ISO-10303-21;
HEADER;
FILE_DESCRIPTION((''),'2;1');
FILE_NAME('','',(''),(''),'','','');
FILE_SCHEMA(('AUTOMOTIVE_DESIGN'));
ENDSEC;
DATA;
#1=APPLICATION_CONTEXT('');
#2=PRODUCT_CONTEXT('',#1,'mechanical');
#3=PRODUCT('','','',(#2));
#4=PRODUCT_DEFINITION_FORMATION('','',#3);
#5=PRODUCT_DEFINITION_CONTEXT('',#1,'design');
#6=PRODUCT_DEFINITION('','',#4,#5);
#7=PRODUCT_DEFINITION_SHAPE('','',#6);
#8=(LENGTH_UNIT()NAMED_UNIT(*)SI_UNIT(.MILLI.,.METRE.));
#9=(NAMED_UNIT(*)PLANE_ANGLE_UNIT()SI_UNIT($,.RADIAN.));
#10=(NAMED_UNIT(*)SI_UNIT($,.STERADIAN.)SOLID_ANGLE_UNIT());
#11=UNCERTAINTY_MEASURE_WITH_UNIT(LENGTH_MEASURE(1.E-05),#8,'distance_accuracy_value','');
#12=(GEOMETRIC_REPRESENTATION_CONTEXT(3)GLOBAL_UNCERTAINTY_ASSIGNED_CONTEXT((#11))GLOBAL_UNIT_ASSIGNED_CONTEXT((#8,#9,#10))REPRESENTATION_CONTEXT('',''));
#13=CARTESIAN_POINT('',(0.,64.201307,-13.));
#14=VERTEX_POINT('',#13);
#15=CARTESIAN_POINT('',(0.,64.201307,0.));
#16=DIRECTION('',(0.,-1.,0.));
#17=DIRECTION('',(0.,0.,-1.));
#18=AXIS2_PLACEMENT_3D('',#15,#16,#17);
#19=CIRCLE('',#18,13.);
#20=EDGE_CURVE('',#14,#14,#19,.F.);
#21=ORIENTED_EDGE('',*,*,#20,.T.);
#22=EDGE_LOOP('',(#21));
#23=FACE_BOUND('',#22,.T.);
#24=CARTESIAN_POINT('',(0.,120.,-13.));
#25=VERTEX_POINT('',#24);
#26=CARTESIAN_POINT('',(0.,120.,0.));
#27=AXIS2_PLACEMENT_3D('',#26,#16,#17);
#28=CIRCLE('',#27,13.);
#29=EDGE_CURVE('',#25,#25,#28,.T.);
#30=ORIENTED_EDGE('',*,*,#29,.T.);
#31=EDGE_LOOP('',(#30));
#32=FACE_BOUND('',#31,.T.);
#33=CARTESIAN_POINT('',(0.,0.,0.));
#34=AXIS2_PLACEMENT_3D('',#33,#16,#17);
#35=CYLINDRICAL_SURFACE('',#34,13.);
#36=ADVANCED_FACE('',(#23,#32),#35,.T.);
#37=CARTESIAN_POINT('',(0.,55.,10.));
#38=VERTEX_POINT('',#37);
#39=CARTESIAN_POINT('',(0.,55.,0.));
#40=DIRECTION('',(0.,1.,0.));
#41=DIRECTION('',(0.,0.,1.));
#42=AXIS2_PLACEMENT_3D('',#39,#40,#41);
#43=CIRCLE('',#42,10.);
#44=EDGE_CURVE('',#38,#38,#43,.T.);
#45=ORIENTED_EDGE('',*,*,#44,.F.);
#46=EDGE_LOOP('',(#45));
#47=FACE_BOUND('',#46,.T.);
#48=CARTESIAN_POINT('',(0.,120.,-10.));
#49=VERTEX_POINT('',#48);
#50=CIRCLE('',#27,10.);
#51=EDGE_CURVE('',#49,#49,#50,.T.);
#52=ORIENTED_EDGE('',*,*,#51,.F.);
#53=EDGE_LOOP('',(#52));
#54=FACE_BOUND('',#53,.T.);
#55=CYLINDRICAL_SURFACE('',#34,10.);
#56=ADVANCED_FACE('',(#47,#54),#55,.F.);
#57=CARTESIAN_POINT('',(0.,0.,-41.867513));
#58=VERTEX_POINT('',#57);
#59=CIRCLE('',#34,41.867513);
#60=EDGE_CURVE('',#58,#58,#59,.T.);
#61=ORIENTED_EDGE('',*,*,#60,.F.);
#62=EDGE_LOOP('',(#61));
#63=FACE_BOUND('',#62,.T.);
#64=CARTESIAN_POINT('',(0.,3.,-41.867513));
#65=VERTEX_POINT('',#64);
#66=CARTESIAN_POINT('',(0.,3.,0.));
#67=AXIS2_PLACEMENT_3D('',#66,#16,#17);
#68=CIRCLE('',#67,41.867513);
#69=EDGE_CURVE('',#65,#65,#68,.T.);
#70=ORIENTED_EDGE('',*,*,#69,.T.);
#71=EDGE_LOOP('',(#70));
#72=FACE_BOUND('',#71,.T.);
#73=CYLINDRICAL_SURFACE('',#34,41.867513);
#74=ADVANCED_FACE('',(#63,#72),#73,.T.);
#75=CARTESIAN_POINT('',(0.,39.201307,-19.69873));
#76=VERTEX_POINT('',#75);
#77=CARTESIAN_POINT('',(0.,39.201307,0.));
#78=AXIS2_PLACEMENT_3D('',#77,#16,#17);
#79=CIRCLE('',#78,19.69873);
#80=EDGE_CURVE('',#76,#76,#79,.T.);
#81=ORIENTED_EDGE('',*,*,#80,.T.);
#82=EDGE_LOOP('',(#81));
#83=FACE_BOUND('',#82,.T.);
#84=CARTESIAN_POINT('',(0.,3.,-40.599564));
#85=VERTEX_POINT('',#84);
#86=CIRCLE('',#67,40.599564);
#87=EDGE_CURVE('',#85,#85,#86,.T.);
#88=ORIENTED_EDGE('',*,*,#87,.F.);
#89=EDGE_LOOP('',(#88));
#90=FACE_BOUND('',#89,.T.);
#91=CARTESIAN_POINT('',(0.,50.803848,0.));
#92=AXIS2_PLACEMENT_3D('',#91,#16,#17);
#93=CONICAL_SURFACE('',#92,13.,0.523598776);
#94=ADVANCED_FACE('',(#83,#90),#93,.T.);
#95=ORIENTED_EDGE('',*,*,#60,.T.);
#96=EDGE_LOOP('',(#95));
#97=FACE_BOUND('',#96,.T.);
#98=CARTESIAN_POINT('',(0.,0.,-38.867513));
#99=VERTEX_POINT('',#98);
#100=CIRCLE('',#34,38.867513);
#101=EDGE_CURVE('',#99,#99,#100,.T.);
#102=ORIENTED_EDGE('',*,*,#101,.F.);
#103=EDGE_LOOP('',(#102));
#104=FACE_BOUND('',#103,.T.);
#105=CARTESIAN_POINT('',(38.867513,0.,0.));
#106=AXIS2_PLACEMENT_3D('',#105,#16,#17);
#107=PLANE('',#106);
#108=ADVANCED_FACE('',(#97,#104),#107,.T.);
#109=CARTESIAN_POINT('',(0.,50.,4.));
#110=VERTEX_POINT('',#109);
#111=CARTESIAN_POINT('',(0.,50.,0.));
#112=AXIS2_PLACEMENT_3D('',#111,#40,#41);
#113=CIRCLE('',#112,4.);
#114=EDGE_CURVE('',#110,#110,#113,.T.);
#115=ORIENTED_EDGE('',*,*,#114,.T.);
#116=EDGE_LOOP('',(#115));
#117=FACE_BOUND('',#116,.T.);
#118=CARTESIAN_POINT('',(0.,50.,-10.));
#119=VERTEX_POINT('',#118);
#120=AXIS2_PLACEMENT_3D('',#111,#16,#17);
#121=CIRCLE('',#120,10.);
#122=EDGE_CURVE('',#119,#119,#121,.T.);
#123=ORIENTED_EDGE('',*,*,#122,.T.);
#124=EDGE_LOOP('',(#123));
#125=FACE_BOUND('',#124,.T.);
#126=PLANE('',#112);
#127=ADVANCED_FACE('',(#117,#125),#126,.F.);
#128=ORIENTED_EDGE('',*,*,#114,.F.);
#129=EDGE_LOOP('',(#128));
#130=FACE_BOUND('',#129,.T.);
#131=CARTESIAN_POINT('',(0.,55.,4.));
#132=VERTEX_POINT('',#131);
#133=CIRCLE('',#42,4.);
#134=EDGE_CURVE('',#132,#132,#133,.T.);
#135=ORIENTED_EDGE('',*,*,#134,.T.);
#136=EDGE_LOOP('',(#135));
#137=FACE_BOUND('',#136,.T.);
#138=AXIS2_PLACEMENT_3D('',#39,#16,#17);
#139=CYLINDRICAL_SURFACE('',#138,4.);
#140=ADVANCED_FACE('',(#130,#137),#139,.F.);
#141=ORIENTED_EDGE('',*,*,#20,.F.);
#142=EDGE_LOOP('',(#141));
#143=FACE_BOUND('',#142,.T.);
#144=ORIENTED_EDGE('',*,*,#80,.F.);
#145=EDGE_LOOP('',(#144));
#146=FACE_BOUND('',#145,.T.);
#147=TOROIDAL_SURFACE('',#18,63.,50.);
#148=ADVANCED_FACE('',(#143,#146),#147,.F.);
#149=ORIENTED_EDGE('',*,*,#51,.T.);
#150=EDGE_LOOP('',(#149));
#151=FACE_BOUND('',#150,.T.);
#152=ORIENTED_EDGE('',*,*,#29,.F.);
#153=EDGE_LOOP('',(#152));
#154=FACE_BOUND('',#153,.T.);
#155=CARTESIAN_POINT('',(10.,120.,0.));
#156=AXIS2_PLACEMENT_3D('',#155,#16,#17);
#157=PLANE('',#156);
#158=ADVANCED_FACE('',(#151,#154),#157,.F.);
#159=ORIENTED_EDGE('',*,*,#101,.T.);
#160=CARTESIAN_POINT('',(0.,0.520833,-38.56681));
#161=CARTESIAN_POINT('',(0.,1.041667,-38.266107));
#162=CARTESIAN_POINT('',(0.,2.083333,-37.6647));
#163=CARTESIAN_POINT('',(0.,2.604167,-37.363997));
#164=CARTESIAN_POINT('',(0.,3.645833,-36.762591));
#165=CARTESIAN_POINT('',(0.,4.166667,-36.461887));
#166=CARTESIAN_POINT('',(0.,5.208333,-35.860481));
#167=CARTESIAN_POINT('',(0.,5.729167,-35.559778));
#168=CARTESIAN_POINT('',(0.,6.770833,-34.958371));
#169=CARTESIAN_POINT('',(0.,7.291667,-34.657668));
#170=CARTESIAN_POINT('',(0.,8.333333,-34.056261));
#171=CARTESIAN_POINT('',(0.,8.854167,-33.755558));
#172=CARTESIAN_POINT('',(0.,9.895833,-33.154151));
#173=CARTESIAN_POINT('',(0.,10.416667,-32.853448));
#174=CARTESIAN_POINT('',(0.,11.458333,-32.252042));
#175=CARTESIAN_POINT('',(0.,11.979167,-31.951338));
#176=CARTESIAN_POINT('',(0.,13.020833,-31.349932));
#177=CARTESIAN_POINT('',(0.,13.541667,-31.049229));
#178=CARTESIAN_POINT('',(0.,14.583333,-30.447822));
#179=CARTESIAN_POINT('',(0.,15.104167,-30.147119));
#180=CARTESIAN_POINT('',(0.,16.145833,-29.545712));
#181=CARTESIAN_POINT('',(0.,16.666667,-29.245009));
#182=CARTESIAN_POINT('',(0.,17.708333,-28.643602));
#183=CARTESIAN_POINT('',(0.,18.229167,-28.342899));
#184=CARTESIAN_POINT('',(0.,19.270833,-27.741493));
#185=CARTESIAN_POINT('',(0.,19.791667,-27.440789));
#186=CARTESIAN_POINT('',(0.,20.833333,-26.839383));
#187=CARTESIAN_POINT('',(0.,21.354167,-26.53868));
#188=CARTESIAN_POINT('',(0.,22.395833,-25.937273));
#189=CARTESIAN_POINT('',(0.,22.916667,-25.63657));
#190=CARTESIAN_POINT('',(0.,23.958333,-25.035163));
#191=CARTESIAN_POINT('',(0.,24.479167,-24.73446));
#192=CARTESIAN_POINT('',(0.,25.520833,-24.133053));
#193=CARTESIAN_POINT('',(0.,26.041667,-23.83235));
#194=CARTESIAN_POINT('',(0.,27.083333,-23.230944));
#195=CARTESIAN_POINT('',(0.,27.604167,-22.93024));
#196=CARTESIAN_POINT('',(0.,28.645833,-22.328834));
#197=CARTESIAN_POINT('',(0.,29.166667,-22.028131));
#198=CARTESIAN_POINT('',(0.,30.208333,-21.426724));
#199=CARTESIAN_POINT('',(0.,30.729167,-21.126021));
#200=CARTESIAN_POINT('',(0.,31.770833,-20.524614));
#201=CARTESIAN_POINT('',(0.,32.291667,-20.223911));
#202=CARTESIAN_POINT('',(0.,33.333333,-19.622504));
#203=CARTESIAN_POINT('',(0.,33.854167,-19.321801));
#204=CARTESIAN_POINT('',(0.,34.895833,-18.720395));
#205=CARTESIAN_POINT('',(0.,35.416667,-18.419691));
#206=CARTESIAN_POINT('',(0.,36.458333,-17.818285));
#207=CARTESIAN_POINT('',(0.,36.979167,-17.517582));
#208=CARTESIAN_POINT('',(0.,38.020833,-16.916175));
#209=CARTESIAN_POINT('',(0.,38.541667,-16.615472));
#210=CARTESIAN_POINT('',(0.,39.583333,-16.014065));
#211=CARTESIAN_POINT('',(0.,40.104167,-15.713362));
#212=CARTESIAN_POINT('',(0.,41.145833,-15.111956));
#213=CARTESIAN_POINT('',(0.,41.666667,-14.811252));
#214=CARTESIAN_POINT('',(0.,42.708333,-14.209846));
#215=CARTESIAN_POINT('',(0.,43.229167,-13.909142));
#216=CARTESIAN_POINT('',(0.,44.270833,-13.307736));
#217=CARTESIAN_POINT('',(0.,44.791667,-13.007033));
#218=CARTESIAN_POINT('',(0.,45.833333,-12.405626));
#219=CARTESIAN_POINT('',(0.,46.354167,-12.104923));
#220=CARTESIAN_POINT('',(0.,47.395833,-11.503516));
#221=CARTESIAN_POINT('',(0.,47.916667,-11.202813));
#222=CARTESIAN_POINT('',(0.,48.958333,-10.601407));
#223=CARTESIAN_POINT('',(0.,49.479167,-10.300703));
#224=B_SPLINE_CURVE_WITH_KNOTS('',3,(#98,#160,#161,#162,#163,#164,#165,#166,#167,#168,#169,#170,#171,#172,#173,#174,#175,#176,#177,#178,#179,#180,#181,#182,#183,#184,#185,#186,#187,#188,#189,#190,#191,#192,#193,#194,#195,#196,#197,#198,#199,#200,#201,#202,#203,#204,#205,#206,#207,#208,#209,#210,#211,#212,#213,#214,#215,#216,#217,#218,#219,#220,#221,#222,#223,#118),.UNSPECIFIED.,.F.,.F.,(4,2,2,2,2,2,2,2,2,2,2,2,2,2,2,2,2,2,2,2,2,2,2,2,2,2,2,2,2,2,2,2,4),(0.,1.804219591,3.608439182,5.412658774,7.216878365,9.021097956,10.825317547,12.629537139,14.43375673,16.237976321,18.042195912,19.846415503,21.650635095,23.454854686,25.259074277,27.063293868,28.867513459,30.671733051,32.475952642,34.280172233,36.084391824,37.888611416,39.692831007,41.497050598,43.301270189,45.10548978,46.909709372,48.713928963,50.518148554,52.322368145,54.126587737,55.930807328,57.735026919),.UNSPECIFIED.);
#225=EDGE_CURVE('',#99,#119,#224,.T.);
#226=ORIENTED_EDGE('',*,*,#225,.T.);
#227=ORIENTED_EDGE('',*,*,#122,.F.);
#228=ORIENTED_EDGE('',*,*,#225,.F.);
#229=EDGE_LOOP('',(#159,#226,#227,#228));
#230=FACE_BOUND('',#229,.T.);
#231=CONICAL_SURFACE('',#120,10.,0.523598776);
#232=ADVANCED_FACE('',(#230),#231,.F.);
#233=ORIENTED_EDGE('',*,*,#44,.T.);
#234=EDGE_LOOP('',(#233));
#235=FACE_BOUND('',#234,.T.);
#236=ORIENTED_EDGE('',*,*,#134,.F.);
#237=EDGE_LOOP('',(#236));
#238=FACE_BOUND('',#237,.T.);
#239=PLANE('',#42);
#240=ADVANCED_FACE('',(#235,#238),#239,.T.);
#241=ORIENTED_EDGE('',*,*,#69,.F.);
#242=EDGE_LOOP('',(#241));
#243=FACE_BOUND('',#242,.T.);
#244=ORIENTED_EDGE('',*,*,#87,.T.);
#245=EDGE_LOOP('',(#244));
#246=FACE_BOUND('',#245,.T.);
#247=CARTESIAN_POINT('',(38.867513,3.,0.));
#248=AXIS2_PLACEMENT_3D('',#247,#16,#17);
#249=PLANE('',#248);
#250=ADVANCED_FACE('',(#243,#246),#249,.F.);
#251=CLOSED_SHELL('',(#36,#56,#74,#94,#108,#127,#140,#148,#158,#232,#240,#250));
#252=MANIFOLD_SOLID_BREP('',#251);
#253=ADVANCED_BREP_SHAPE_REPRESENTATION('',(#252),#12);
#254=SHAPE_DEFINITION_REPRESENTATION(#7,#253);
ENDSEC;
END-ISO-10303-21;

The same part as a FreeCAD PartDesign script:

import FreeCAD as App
import Part
import Sketcher

V = App.Vector
Q = App.Units.Quantity


def edges_at(feature, points):
    """Names of the edges that pass closest to the given points."""
    edges = feature.Shape.Edges
    near = lambda p: min(range(len(edges)), key=lambda i: edges[i].distToShape(Part.Vertex(*p))[0])
    return sorted({f"Edge{near(p) + 1}" for p in points})

doc = App.newDocument("Part")
body = doc.addObject("PartDesign::Body", "Body")

# Sketch on XY plane
sketch1 = body.newObject("Sketcher::SketchObject", "Sketch")
sketch1.AttachmentSupport = (doc.getObject("XY_Plane"), [""])
sketch1.MapMode = "FlatFace"
sketch1.addGeometry(Part.LineSegment(V(10, 120, 0), V(10, 50, 0)), False)
sketch1.addGeometry(Part.LineSegment(V(10, 50, 0), V(38.867513, 0, 0)), False)
sketch1.addGeometry(Part.LineSegment(V(38.867513, 0, 0), V(41.867513, 0, 0)), False)
sketch1.addGeometry(Part.LineSegment(V(41.867513, 0, 0), V(41.867513, 3, 0)), False)
sketch1.addGeometry(Part.LineSegment(V(41.867513, 3, 0), V(40.599564, 3, 0)), False)
sketch1.addGeometry(Part.LineSegment(V(40.599564, 3, 0), V(13, 50.803848, 0)), False)
sketch1.addGeometry(Part.LineSegment(V(13, 50.803848, 0), V(13, 120, 0)), False)
sketch1.addGeometry(Part.LineSegment(V(13, 120, 0), V(10, 120, 0)), False)
sketch1.addConstraint(Sketcher.Constraint("Coincident", 0, 2, 1, 1))
sketch1.addConstraint(Sketcher.Constraint("Coincident", 1, 2, 2, 1))
sketch1.addConstraint(Sketcher.Constraint("Coincident", 2, 2, 3, 1))
sketch1.addConstraint(Sketcher.Constraint("Coincident", 3, 2, 4, 1))
sketch1.addConstraint(Sketcher.Constraint("Coincident", 4, 2, 5, 1))
sketch1.addConstraint(Sketcher.Constraint("Coincident", 5, 2, 6, 1))
sketch1.addConstraint(Sketcher.Constraint("Coincident", 6, 2, 7, 1))
sketch1.addConstraint(Sketcher.Constraint("Coincident", 7, 2, 0, 1))
sketch1.addConstraint(Sketcher.Constraint("Vertical", 0))
sketch1.addConstraint(Sketcher.Constraint("Horizontal", 2))
sketch1.addConstraint(Sketcher.Constraint("Vertical", 3))
sketch1.addConstraint(Sketcher.Constraint("Horizontal", 4))
sketch1.addConstraint(Sketcher.Constraint("Vertical", 6))
sketch1.addConstraint(Sketcher.Constraint("Horizontal", 7))
sketch1.addConstraint(Sketcher.Constraint("PointOnObject", 1, 2, -1))
sketch1.addConstraint(Sketcher.Constraint("Parallel", 1, 5))
sketch1.addConstraint(Sketcher.Constraint("Equal", 2, 7))
sketch1.addConstraint(Sketcher.Constraint("Equal", 7, 3))
sketch1.addConstraint(Sketcher.Constraint("DistanceX", 2, 1, 2, 2, 3.0))
sketch1.addConstraint(Sketcher.Constraint("DistanceY", 0, 2, 0, 1, 70.0))
sketch1.addConstraint(Sketcher.Constraint("Angle", 1, Q("-60 deg")))
sketch1.addConstraint(Sketcher.Constraint("DistanceX", -1, 1, 0, 2, 10.0))
sketch1.addConstraint(Sketcher.Constraint("DistanceY", -1, 1, 0, 2, 50.0))
sketch1.addConstraint(Sketcher.Constraint("DistanceX", 4, 2, 4, 1, 1.267949))
revolution = body.newObject("PartDesign::Revolution", "Revolution")
revolution.Profile = sketch1
revolution.ReferenceAxis = (sketch1, ["V_Axis"])
revolution.Angle = 360

# Sketch on XZ plane
sketch2 = body.newObject("Sketcher::SketchObject", "Sketch001")
sketch2.AttachmentSupport = (doc.getObject("XZ_Plane"), [""])
sketch2.MapMode = "FlatFace"
sketch2.AttachmentOffset = App.Placement(V(0, 0, -50), App.Rotation())
sketch2.addGeometry(Part.Circle(V(0, 0, 0), V(0, 0, 1), 10), False)
sketch2.addGeometry(Part.Circle(V(0, 0, 0), V(0, 0, 1), 4), False)
sketch2.addConstraint(Sketcher.Constraint("Coincident", 0, 3, -1, 1))
sketch2.addConstraint(Sketcher.Constraint("Coincident", 1, 3, -1, 1))
sketch2.addConstraint(Sketcher.Constraint("Diameter", 0, 20.0))
sketch2.addConstraint(Sketcher.Constraint("Diameter", 1, 8.0))
pad1 = body.newObject("PartDesign::Pad", "Pad")
pad1.Profile = sketch2
pad1.Length = 5
pad1.Reversed = True
doc.recompute()

fillet = body.newObject("PartDesign::Fillet", "Fillet")
fillet.Base = (pad1, edges_at(pad1, [(0, 50.804, 13)]))
fillet.Radius = 50

doc.recompute()
